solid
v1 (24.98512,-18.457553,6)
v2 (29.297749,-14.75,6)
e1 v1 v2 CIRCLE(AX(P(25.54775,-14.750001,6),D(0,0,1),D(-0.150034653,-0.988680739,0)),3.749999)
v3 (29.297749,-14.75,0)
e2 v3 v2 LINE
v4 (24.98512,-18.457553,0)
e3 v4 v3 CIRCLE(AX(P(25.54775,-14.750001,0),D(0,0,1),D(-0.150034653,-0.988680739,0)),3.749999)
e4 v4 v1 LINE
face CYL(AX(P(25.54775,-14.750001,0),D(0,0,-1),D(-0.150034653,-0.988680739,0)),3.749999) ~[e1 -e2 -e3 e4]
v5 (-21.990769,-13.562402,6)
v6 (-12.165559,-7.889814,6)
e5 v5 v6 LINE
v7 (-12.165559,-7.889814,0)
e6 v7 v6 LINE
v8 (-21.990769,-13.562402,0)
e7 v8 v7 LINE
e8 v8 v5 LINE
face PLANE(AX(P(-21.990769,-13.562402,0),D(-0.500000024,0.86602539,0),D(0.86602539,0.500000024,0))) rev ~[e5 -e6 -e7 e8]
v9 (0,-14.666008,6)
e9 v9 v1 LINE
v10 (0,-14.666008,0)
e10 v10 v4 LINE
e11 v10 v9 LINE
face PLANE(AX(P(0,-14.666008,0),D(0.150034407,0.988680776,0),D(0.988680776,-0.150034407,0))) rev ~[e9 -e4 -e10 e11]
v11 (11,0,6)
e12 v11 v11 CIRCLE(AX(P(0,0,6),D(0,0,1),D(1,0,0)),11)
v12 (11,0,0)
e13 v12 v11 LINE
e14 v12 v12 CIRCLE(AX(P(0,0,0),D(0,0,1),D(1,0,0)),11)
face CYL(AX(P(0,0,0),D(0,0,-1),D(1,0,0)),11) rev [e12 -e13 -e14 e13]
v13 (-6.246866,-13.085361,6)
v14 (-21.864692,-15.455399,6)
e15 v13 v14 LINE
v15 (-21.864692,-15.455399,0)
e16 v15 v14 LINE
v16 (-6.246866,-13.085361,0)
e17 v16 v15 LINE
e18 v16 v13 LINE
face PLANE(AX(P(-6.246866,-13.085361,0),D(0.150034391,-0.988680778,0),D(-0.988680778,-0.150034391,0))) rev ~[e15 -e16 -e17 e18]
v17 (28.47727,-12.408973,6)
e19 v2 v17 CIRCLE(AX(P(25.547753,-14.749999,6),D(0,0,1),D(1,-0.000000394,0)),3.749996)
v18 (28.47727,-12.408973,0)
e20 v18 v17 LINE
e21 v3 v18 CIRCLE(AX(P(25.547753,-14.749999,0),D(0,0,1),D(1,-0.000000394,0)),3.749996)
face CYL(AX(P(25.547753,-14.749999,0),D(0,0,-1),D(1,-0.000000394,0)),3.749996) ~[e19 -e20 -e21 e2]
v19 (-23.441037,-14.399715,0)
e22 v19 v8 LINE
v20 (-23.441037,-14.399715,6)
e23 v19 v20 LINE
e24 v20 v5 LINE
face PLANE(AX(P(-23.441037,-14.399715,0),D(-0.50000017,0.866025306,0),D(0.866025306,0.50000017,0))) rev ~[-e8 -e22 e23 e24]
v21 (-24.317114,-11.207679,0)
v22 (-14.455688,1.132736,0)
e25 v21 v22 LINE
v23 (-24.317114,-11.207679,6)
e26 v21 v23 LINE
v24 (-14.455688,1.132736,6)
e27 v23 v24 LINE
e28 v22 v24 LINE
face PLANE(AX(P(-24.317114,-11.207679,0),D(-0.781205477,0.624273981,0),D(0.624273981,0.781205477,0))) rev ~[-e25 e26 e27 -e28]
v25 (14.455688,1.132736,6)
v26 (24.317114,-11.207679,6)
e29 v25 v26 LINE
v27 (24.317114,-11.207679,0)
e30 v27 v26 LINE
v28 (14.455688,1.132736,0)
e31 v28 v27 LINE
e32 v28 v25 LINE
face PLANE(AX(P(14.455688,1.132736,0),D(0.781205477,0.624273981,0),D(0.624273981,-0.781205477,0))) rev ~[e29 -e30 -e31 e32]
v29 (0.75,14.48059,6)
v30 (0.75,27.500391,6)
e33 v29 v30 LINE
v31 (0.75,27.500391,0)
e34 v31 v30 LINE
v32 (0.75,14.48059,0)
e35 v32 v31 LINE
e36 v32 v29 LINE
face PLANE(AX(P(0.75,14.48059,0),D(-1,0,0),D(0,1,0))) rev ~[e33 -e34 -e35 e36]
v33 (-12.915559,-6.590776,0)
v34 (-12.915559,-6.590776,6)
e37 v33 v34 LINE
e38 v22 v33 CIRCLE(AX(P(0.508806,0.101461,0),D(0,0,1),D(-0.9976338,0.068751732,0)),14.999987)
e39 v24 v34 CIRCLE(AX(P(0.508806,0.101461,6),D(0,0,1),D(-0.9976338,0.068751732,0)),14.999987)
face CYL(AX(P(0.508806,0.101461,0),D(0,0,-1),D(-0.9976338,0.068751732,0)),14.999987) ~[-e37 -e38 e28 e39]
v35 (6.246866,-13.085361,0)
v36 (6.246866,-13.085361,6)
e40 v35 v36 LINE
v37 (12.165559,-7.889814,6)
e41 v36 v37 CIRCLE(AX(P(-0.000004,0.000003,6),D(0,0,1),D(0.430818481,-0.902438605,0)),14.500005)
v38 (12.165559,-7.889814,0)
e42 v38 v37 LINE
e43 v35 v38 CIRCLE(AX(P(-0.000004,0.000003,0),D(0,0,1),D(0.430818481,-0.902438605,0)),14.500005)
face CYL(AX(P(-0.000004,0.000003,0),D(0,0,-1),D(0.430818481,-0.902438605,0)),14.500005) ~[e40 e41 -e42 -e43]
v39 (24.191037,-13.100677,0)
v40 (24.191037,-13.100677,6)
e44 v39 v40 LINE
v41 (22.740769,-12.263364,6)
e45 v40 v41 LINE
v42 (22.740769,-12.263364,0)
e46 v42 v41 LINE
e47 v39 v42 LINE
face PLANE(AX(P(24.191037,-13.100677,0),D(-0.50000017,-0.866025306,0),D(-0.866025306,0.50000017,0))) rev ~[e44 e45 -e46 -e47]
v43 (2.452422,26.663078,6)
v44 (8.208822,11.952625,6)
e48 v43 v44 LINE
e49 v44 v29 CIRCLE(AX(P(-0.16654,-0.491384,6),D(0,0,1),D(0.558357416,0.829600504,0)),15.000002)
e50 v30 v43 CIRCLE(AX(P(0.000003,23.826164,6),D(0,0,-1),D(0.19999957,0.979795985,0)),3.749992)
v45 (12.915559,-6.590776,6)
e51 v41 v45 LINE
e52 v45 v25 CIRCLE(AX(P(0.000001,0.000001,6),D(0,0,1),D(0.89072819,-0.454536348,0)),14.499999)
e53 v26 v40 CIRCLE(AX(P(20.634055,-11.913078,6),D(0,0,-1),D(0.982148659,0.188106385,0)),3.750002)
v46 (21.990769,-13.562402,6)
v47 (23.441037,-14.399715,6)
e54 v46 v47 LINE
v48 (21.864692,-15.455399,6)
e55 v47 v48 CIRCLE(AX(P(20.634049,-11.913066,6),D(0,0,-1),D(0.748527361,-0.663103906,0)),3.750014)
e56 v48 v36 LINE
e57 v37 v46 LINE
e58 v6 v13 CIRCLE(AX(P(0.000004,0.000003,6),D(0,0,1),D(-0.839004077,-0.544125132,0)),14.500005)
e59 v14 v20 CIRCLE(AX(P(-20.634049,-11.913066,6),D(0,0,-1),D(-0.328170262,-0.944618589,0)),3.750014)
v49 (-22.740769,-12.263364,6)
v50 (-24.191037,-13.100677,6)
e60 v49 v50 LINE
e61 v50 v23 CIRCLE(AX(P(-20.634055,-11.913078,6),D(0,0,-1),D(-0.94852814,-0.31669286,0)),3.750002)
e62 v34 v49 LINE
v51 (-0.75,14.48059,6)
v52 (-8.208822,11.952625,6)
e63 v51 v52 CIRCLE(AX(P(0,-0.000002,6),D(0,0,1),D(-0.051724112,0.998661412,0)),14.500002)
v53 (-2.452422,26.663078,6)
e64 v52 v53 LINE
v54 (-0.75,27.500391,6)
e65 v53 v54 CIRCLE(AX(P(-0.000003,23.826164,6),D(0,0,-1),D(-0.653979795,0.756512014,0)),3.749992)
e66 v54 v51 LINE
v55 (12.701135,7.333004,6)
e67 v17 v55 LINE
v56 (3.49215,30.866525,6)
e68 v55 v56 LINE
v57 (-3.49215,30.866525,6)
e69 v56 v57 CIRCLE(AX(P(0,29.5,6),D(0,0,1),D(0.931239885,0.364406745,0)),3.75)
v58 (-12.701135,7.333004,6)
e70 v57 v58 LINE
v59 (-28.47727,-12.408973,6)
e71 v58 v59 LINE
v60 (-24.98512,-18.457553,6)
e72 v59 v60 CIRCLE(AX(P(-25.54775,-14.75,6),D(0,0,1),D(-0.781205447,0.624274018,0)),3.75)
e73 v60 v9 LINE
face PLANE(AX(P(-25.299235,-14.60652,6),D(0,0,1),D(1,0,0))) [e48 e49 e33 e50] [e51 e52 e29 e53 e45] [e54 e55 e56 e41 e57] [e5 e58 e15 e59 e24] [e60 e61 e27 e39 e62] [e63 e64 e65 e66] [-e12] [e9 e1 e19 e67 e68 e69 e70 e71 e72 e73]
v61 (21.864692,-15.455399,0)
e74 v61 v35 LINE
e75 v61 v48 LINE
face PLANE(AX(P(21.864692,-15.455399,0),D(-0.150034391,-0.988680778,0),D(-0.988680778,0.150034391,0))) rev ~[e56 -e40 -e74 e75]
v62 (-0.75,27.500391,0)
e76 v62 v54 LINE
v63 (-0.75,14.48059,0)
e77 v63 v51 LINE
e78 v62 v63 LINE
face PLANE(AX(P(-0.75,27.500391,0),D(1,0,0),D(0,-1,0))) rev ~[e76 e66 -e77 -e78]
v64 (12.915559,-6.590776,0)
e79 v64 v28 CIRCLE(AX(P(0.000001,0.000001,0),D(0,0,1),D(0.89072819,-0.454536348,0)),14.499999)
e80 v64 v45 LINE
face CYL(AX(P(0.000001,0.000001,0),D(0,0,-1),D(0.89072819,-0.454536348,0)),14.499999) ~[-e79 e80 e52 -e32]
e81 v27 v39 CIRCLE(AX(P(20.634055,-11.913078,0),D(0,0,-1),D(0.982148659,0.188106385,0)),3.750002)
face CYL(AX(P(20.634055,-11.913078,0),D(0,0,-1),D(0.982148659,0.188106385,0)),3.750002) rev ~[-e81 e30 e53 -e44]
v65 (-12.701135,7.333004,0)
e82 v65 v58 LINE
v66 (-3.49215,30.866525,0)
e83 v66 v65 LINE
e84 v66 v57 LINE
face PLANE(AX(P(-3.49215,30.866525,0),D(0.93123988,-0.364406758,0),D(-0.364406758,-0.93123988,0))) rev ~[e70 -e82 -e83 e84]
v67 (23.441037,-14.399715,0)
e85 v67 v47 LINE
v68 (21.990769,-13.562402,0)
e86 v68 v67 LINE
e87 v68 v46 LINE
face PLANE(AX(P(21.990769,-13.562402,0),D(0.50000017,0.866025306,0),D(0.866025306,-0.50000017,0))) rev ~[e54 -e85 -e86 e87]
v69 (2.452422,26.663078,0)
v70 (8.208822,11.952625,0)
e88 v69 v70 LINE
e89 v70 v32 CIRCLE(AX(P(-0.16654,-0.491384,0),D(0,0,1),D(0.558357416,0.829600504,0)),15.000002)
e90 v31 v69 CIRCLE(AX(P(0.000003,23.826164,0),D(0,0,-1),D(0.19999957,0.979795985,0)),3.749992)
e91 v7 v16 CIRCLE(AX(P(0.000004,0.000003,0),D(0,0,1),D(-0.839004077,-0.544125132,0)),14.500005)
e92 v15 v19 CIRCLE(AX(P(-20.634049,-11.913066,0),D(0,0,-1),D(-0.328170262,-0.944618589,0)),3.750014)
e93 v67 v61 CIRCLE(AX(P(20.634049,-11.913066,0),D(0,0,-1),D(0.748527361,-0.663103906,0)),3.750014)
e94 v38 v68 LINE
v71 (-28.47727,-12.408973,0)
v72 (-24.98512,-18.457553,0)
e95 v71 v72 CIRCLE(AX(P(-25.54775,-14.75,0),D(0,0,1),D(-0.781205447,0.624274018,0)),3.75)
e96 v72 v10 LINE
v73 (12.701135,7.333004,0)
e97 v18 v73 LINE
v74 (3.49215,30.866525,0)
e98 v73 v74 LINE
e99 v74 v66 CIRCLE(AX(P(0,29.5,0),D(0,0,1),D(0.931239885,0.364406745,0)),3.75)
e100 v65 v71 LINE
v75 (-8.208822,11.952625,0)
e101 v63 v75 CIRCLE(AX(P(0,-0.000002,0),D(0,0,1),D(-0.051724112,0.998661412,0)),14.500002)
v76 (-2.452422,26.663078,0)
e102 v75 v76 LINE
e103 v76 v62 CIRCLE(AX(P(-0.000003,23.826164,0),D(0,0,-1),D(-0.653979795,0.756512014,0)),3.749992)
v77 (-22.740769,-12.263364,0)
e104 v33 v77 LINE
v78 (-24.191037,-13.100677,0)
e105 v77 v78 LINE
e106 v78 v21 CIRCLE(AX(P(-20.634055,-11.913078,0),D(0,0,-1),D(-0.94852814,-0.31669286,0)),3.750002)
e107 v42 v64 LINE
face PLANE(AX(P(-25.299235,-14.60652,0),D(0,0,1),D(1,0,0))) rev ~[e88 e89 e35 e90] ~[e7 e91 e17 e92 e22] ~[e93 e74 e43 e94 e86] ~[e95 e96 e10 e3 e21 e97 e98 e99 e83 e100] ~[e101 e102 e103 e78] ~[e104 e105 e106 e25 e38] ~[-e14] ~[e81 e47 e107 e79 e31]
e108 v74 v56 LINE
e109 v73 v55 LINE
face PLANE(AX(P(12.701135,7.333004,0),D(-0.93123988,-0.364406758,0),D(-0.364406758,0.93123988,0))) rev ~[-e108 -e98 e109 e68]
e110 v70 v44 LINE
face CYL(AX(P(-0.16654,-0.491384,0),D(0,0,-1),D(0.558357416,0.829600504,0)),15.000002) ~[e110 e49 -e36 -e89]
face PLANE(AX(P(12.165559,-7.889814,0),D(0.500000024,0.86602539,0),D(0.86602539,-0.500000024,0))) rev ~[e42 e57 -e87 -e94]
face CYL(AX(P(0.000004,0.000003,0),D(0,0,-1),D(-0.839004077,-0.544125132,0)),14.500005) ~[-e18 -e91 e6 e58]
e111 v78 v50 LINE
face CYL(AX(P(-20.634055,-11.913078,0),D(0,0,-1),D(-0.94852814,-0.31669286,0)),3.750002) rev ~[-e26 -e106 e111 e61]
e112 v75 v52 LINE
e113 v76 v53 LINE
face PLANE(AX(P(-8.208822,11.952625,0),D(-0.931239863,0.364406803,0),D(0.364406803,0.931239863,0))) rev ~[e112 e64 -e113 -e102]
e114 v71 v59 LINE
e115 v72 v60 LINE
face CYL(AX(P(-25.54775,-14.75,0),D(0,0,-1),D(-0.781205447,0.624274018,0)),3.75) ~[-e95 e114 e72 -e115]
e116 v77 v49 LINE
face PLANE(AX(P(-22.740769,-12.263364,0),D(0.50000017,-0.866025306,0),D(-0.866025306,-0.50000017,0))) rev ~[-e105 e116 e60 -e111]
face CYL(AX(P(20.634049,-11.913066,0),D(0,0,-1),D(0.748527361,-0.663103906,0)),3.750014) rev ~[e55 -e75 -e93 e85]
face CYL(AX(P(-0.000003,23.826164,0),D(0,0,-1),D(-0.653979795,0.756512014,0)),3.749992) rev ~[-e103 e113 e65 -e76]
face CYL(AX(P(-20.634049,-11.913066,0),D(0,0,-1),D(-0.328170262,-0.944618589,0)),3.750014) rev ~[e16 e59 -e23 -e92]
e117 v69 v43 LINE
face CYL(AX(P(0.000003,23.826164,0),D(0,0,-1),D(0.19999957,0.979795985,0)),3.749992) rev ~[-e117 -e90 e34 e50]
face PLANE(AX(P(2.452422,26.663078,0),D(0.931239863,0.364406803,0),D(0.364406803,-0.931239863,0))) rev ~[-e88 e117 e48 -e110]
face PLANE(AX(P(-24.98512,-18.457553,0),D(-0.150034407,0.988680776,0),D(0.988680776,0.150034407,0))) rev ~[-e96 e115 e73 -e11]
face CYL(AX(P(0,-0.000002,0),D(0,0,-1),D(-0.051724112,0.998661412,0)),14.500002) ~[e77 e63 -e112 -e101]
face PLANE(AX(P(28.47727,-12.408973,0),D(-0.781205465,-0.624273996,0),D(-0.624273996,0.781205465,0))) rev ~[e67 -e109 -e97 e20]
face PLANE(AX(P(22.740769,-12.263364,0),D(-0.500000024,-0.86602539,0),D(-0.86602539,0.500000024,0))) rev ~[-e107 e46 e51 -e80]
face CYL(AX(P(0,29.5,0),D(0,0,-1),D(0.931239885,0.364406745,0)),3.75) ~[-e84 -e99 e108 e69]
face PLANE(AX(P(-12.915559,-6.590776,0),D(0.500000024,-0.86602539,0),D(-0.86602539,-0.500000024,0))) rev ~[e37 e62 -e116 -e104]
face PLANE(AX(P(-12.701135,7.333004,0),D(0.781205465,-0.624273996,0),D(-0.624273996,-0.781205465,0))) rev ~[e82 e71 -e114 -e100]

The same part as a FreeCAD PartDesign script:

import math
import FreeCAD as App
import Part
import Sketcher
from FreeCAD import Vector
Q = App.Units.Quantity

doc = App.newDocument("Part")
body = doc.addObject("PartDesign::Body", "Body")

# Sketch on XY plane
sketch1 = body.newObject("Sketcher::SketchObject", "Sketch")
sketch1.AttachmentSupport = (doc.getObject("XY_Plane"), [""])
sketch1.MapMode = "FlatFace"
sketch1.addGeometry([
    Part.ArcOfCircle(Part.Circle(Vector(-25.54775, -14.75, 0), Vector(0, 0, 1), 3.75), math.radians(141.371078), math.radians(278.628932)),  # 0
    Part.LineSegment(Vector(-24.98512, -18.457553, 0), Vector(0, -14.666008, 0)),  # 1
    Part.LineSegment(Vector(0, -14.666008, 0), Vector(24.98512, -18.457553, 0)),  # 2
    Part.ArcOfCircle(Part.Circle(Vector(25.54775, -14.750001, 0), Vector(0, 0, 1), 3.749999), math.radians(-98.628935), math.radians(0.000016)),  # 3
    Part.ArcOfCircle(Part.Circle(Vector(25.547753, -14.749999, 0), Vector(0, 0, 1), 3.749996), math.radians(-0.000023), math.radians(38.628928)),  # 4
    Part.LineSegment(Vector(28.47727, -12.408973, 0), Vector(12.701135, 7.333004, 0)),  # 5
    Part.LineSegment(Vector(12.701135, 7.333004, 0), Vector(3.49215, 30.866525, 0)),  # 6
    Part.ArcOfCircle(Part.Circle(Vector(0, 29.5, 0), Vector(0, 0, 1), 3.75), math.radians(21.371077), math.radians(158.628923)),  # 7
    Part.LineSegment(Vector(-3.49215, 30.866525, 0), Vector(-12.701135, 7.333004, 0)),  # 8
    Part.LineSegment(Vector(-12.701135, 7.333004, 0), Vector(-28.47727, -12.408973, 0)),  # 9
    Part.LineSegment(Vector(21.864692, -15.455399, 0), Vector(6.246866, -13.085361, 0)),  # 10
    Part.ArcOfCircle(Part.Circle(Vector(-0.000004, 0.000003, 0), Vector(0, 0, 1), 14.500005), math.radians(-64.480486), math.radians(-32.964898)),  # 11
    Part.LineSegment(Vector(12.165559, -7.889814, 0), Vector(21.990769, -13.562402, 0)),  # 12
    Part.LineSegment(Vector(21.990769, -13.562402, 0), Vector(23.441037, -14.399715, 0)),  # 13
    Part.ArcOfCircle(Part.Circle(Vector(20.634049, -11.913066, 0), Vector(0, 0, 1), 3.750014), math.radians(-70.842245), math.radians(-41.537026)),  # 14
    Part.LineSegment(Vector(14.455688, 1.132736, 0), Vector(24.317114, -11.207679, 0)),  # 15
    Part.ArcOfCircle(Part.Circle(Vector(20.634055, -11.913078, 0), Vector(0, 0, 1), 3.750002), math.radians(-18.46304), math.radians(10.842296)),  # 16
    Part.LineSegment(Vector(24.191037, -13.100677, 0), Vector(22.740769, -12.263364, 0)),  # 17
    Part.LineSegment(Vector(22.740769, -12.263364, 0), Vector(12.915559, -6.590776, 0)),  # 18
    Part.ArcOfCircle(Part.Circle(Vector(0.000001, 0.000001, 0), Vector(0, 0, 1), 14.499999), math.radians(-27.035106), math.radians(4.480493)),  # 19
    Part.LineSegment(Vector(-22.740769, -12.263364, 0), Vector(-24.191037, -13.100677, 0)),  # 20
    Part.ArcOfCircle(Part.Circle(Vector(-20.634055, -11.913078, 0), Vector(0, 0, 1), 3.750002), math.radians(169.157704), math.radians(198.46304)),  # 21
    Part.LineSegment(Vector(-24.317114, -11.207679, 0), Vector(-14.455688, 1.132736, 0)),  # 22
    Part.ArcOfCircle(Part.Circle(Vector(0.508806, 0.101461, 0), Vector(0, 0, 1), 14.999987), math.radians(176.057706), math.radians(206.496907)),  # 23
    Part.LineSegment(Vector(-12.915559, -6.590776, 0), Vector(-22.740769, -12.263364, 0)),  # 24
    Part.LineSegment(Vector(-23.441037, -14.399715, 0), Vector(-21.990769, -13.562402, 0)),  # 25
    Part.LineSegment(Vector(-21.990769, -13.562402, 0), Vector(-12.165559, -7.889814, 0)),  # 26
    Part.ArcOfCircle(Part.Circle(Vector(0.000004, 0.000003, 0), Vector(0, 0, 1), 14.500005), math.radians(-147.035102), math.radians(-115.519514)),  # 27
    Part.LineSegment(Vector(-6.246866, -13.085361, 0), Vector(-21.864692, -15.455399, 0)),  # 28
    Part.ArcOfCircle(Part.Circle(Vector(-20.634049, -11.913066, 0), Vector(0, 0, 1), 3.750014), math.radians(-138.462974), math.radians(-109.157755)),  # 29
    Part.Circle(Vector(0, 0, 0), Vector(0, 0, 1), 11),  # 30
    Part.ArcOfCircle(Part.Circle(Vector(0, -0.000002, 0), Vector(0, 0, 1), 14.500002), math.radians(92.964896), math.radians(124.480489)),  # 31
    Part.LineSegment(Vector(-8.208822, 11.952625, 0), Vector(-2.452422, 26.663078, 0)),  # 32
    Part.ArcOfCircle(Part.Circle(Vector(-0.000003, 23.826164, 0), Vector(0, 0, 1), 3.749992), math.radians(101.536934), math.radians(130.842338)),  # 33
    Part.LineSegment(Vector(-0.75, 27.500391, 0), Vector(-0.75, 14.48059, 0)),  # 34
    Part.LineSegment(Vector(0.75, 14.48059, 0), Vector(0.75, 27.500391, 0)),  # 35
    Part.ArcOfCircle(Part.Circle(Vector(0.000003, 23.826164, 0), Vector(0, 0, 1), 3.749992), math.radians(49.157662), math.radians(78.463066)),  # 36
    Part.LineSegment(Vector(2.452422, 26.663078, 0), Vector(8.208822, 11.952625, 0)),  # 37
    Part.ArcOfCircle(Part.Circle(Vector(-0.16654, -0.491384, 0), Vector(0, 0, 1), 15.000002), math.radians(56.057722), math.radians(86.496893)),  # 38
], False)
sketch1.addConstraint([
    Sketcher.Constraint("Coincident", 0, 2, 1, 1),
    Sketcher.Constraint("Coincident", 1, 2, 2, 1),
    Sketcher.Constraint("Coincident", 2, 2, 3, 1),
    Sketcher.Constraint("Coincident", 3, 2, 4, 1),
    Sketcher.Constraint("Coincident", 4, 2, 5, 1),
    Sketcher.Constraint("Coincident", 5, 2, 6, 1),
    Sketcher.Constraint("Coincident", 6, 2, 7, 1),
    Sketcher.Constraint("Coincident", 7, 2, 8, 1),
    Sketcher.Constraint("Coincident", 8, 2, 9, 1),
    Sketcher.Constraint("Coincident", 9, 2, 0, 1),
    Sketcher.Constraint("Coincident", 10, 2, 11, 1),
    Sketcher.Constraint("Coincident", 11, 2, 12, 1),
    Sketcher.Constraint("Coincident", 12, 2, 13, 1),
    Sketcher.Constraint("Coincident", 13, 2, 14, 2),
    Sketcher.Constraint("Coincident", 14, 1, 10, 1),
    Sketcher.Constraint("Coincident", 15, 2, 16, 2),
    Sketcher.Constraint("Coincident", 16, 1, 17, 1),
    Sketcher.Constraint("Coincident", 17, 2, 18, 1),
    Sketcher.Constraint("Coincident", 18, 2, 19, 1),
    Sketcher.Constraint("Coincident", 19, 2, 15, 1),
    Sketcher.Constraint("Coincident", 20, 2, 21, 2),
    Sketcher.Constraint("Coincident", 21, 1, 22, 1),
    Sketcher.Constraint("Coincident", 22, 2, 23, 1),
    Sketcher.Constraint("Coincident", 23, 2, 24, 1),
    Sketcher.Constraint("Coincident", 24, 2, 20, 1),
    Sketcher.Constraint("Coincident", 25, 2, 26, 1),
    Sketcher.Constraint("Coincident", 26, 2, 27, 1),
    Sketcher.Constraint("Coincident", 27, 2, 28, 1),
    Sketcher.Constraint("Coincident", 28, 2, 29, 2),
    Sketcher.Constraint("Coincident", 29, 1, 25, 1),
    Sketcher.Constraint("Coincident", 31, 2, 32, 1),
    Sketcher.Constraint("Coincident", 32, 2, 33, 2),
    Sketcher.Constraint("Coincident", 33, 1, 34, 1),
    Sketcher.Constraint("Coincident", 34, 2, 31, 1),
    Sketcher.Constraint("Coincident", 35, 2, 36, 2),
    Sketcher.Constraint("Coincident", 36, 1, 37, 1),
    Sketcher.Constraint("Coincident", 37, 2, 38, 1),
    Sketcher.Constraint("Coincident", 38, 2, 35, 1),
    Sketcher.Constraint("Vertical", 34),
    Sketcher.Constraint("Vertical", 35),
    Sketcher.Constraint("Coincident", 11, 3, -1, 1),
    Sketcher.Constraint("Coincident", 19, 3, -1, 1),
    Sketcher.Constraint("Coincident", 27, 3, -1, 1),
    Sketcher.Constraint("Coincident", 30, 3, -1, 1),
    Sketcher.Constraint("Coincident", 31, 3, -1, 1),
    Sketcher.Constraint("Coincident", 4, 3, 3, 3),
    Sketcher.Constraint("Coincident", 36, 3, 33, 3),
    Sketcher.Constraint("PointOnObject", 7, 3, -2),
    Sketcher.Constraint("PointOnObject", 1, 2, -2),
    Sketcher.Constraint("Diameter", 30, Q("22 mm")),
    Sketcher.Constraint("Radius", 38, Q("15.000002 mm")),
    Sketcher.Constraint("Radius", 19, Q("14.499999 mm")),
    Sketcher.Constraint("Radius", 31, Q("14.500002 mm")),
    Sketcher.Constraint("Radius", 0, Q("3.75 mm")),
    Sketcher.Constraint("Radius", 3, Q("3.749999 mm")),
    Sketcher.Constraint("Radius", 7, Q("3.75 mm")),
    Sketcher.Constraint("Radius", 16, Q("3.750002 mm")),
    Sketcher.Constraint("Radius", 21, Q("3.750002 mm")),
    Sketcher.Constraint("DistanceY", -1, 1, 7, 3, Q("29.5 mm")),
    Sketcher.Constraint("DistanceX", 33, 1, 35, 2, Q("1.5 mm")),
    Sketcher.Constraint("DistanceY", 0, 3, -1, 1, Q("14.75 mm")),
    Sketcher.Constraint("DistanceY", 3, 3, -1, 1, Q("14.750001 mm")),
    Sketcher.Constraint("DistanceY", 3, 2, -1, 1, Q("14.75 mm")),
    Sketcher.Constraint("DistanceX", 33, 1, -1, 1, Q("0.75 mm")),
    Sketcher.Constraint("Radius", 33, Q("3.749992 mm")),
    Sketcher.Constraint("Radius", 36, Q("3.749992 mm")),
    Sketcher.Constraint("DistanceX", 13, 2, 16, 1, Q("0.75 mm")),
    Sketcher.Constraint("DistanceX", 12, 2, 17, 2, Q("0.75 mm")),
    Sketcher.Constraint("DistanceX", 11, 2, 18, 2, Q("0.75 mm")),
    Sketcher.Constraint("DistanceX", 24, 2, 25, 2, Q("0.75 mm")),
    Sketcher.Constraint("DistanceX", 23, 2, 26, 2, Q("0.75 mm")),
    Sketcher.Constraint("DistanceX", 20, 2, 29, 1, Q("0.75 mm")),
    Sketcher.Constraint("DistanceY", 34, 2, 34, 1, Q("13.019801 mm")),
    Sketcher.Constraint("DistanceY", 35, 1, 35, 2, Q("13.019801 mm")),
    Sketcher.Constraint("Radius", 11, Q("14.500005 mm")),
    Sketcher.Constraint("Radius", 14, Q("3.750014 mm")),
    Sketcher.Constraint("Radius", 23, Q("14.999987 mm")),
    Sketcher.Constraint("Radius", 27, Q("14.500005 mm")),
    Sketcher.Constraint("Radius", 29, Q("3.750014 mm")),
    Sketcher.Constraint("DistanceY", 27, 3, 5, 2, Q("7.333001 mm")),
    Sketcher.Constraint("DistanceY", 11, 3, 8, 2, Q("7.333001 mm")),
    Sketcher.Constraint("DistanceY", 14, 1, -1, 1, Q("15.455399 mm")),
    Sketcher.Constraint("DistanceY", 28, 2, -1, 1, Q("15.455399 mm")),
    Sketcher.Constraint("DistanceX", 0, 3, 3, 3, Q("51.0955 mm")),
    Sketcher.Constraint("DistanceX", 14, 3, 3, 3, Q("4.913701 mm")),
    Sketcher.Constraint("DistanceX", 0, 3, 29, 3, Q("4.913701 mm")),
    Sketcher.Constraint("DistanceX", 7, 2, 6, 2, Q("6.9843 mm")),
    Sketcher.Constraint("DistanceY", 3, 3, 12, 2, Q("1.187599 mm")),
    Sketcher.Constraint("DistanceY", 16, 3, 15, 2, Q("0.705399 mm")),
    Sketcher.Constraint("DistanceY", 20, 2, 21, 3, Q("1.187599 mm")),
    Sketcher.Constraint("DistanceY", 21, 3, 21, 1, Q("0.705399 mm")),
    Sketcher.Constraint("DistanceY", 20, 2, 23, 2, Q("6.509901 mm")),
    Sketcher.Constraint("Distance", 1, Q("25.27117 mm")),
    Sketcher.Constraint("Distance", 2, Q("25.27117 mm")),
    Sketcher.Constraint("Distance", 5, Q("25.271171 mm")),
    Sketcher.Constraint("Distance", 6, Q("25.27117 mm")),
    Sketcher.Constraint("Distance", 8, Q("25.27117 mm")),
    Sketcher.Constraint("Distance", 9, Q("25.271171 mm")),
    Sketcher.Constraint("Distance", 10, Q("15.796632 mm")),
    Sketcher.Constraint("Distance", 15, Q("15.796631 mm")),
    Sketcher.Constraint("Distance", 22, Q("15.796631 mm")),
    Sketcher.Constraint("Distance", 28, Q("15.796632 mm")),
    Sketcher.Constraint("Distance", 32, Q("15.796632 mm")),
    Sketcher.Constraint("Distance", 37, Q("15.796632 mm")),
    Sketcher.Constraint("DistanceX", 0, 3, -1, 1, Q("25.54775 mm")),
    Sketcher.Constraint("DistanceY", 16, 3, -1, 1, Q("11.913078 mm")),
    Sketcher.Constraint("DistanceY", 21, 3, -1, 1, Q("11.913078 mm")),
    Sketcher.Constraint("DistanceY", -1, 1, 23, 3, Q("0.101461 mm")),
    Sketcher.Constraint("DistanceX", 38, 3, -1, 1, Q("0.16654 mm")),
    Sketcher.Constraint("DistanceX", 0, 2, -1, 1, Q("24.98512 mm")),
    Sketcher.Constraint("DistanceX", -1, 1, 4, 2, Q("28.47727 mm")),
    Sketcher.Constraint("DistanceY", 10, 2, -1, 1, Q("13.085361 mm")),
    Sketcher.Constraint("DistanceX", -1, 1, 11, 2, Q("12.165559 mm")),
    Sketcher.Constraint("DistanceX", -1, 1, 12, 2, Q("21.990769 mm")),
    Sketcher.Constraint("DistanceX", 23, 2, -1, 1, Q("12.915559 mm")),
    Sketcher.Constraint("DistanceX", 24, 2, -1, 1, Q("22.740769 mm")),
    Sketcher.Constraint("DistanceY", 27, 2, -1, 1, Q("13.085361 mm")),
    Sketcher.Constraint("DistanceX", 31, 2, -1, 1, Q("8.208822 mm")),
    Sketcher.Constraint("DistanceX", 32, 2, -1, 1, Q("2.452422 mm")),
    Sketcher.Constraint("DistanceY", -1, 1, 36, 1, Q("26.663078 mm")),
    Sketcher.Constraint("DistanceX", 11, 3, 16, 3, Q("20.634059 mm")),
    Sketcher.Constraint("DistanceX", 21, 3, 11, 3, Q("20.634051 mm")),
    Sketcher.Constraint("DistanceX", 12, 2, 13, 2, Q("1.450268 mm")),
    Sketcher.Constraint("DistanceY", 12, 2, 17, 2, Q("1.299038 mm")),
    Sketcher.Constraint("DistanceY", 25, 2, 24, 2, Q("1.299038 mm")),
    Sketcher.Constraint("DistanceY", 25, 2, 26, 2, Q("5.672588 mm")),
])
pad1 = body.newObject("PartDesign::Pad", "Pad")
pad1.Profile = sketch1
pad1.Length = 6

doc.recompute()
